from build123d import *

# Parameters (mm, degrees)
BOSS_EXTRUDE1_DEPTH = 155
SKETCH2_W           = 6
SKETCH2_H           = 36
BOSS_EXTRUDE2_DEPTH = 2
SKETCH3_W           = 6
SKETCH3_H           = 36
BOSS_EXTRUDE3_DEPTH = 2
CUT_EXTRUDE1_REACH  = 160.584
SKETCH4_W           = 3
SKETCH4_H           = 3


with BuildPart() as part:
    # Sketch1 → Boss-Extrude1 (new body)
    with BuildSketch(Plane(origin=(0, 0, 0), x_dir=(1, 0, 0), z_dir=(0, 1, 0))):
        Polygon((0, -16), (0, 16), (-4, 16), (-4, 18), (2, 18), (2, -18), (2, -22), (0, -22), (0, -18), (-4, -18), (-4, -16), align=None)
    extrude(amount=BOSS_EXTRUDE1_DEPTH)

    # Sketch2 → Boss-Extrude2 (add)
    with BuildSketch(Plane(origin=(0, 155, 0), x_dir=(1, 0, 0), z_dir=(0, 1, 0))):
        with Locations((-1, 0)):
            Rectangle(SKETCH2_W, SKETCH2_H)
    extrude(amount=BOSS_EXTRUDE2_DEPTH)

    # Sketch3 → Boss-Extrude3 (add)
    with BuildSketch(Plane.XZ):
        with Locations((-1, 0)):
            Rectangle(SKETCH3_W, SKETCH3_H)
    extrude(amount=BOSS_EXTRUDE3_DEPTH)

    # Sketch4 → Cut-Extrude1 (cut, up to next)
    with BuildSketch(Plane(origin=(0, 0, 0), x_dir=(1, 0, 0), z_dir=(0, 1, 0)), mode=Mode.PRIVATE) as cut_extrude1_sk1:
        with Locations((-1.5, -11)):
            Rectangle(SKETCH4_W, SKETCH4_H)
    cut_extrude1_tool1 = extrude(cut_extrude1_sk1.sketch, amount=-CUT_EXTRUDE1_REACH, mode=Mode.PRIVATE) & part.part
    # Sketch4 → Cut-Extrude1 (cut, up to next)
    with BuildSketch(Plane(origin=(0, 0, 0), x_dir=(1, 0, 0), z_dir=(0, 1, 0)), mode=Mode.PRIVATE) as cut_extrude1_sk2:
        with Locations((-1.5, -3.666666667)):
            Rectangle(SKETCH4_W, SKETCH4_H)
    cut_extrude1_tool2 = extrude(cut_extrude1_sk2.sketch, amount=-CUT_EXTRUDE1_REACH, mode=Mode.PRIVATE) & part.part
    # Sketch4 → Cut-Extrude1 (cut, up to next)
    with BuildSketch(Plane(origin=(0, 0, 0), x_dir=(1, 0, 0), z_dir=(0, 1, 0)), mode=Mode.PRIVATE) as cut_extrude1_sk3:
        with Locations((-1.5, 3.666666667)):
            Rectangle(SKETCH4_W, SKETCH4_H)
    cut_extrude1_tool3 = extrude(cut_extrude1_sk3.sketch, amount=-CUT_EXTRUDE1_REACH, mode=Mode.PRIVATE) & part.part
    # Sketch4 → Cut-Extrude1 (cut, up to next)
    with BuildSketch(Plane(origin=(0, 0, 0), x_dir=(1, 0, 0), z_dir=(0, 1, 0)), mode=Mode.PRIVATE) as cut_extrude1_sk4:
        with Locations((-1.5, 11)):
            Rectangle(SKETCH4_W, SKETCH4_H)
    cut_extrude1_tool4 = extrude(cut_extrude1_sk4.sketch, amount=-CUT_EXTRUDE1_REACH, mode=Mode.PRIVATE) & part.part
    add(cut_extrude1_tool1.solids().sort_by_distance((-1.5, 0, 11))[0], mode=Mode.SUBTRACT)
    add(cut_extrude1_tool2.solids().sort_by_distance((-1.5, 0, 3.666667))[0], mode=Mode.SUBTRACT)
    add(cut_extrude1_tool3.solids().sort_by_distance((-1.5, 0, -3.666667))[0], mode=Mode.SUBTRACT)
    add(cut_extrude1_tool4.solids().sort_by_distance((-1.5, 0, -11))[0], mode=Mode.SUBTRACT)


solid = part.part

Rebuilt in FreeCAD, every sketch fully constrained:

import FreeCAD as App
import Part
import Sketcher

V = App.Vector


def add_polygon(sketch, points):
    """Adds a closed chain of lines whose ends are joined by coincident constraints."""
    first, n = sketch.GeometryCount, len(points)
    for a, b in zip(points, points[1:] + points[:1]):
        sketch.addGeometry(Part.LineSegment(App.Vector(*a, 0), App.Vector(*b, 0)), False)
    for i in range(n):
        sketch.addConstraint(Sketcher.Constraint("Coincident", first + i, 2, first + (i + 1) % n, 1))

doc = App.newDocument("Part")
body = doc.addObject("PartDesign::Body", "Body")

sketch1 = body.newObject("Sketcher::SketchObject", "Sketch")
sketch1.AttachmentSupport = (doc.getObject("XZ_Plane"), [""])
sketch1.MapMode = "FlatFace"
add_polygon(sketch1, [(0, -16), (0, 16), (-4, 16), (-4, 18), (0, 18), (0, 22), (2, 22), (2, -18), (-4, -18), (-4, -16)])
sketch1.addConstraint([
    Sketcher.Constraint("Vertical", 0),
    Sketcher.Constraint("Horizontal", 1),
    Sketcher.Constraint("Vertical", 2),
    Sketcher.Constraint("Horizontal", 3),
    Sketcher.Constraint("Vertical", 4),
    Sketcher.Constraint("Horizontal", 5),
    Sketcher.Constraint("Vertical", 6),
    Sketcher.Constraint("Horizontal", 7),
    Sketcher.Constraint("Vertical", 8),
    Sketcher.Constraint("Horizontal", 9),
    Sketcher.Constraint("Symmetric", 0, 2, 9, 2, -1, 1),
    Sketcher.Constraint("Symmetric", 2, 2, 7, 2, -1),
    Sketcher.Constraint("PointOnObject", 3, 2, -2),
    Sketcher.Constraint("Equal", 5, 2),
    Sketcher.Constraint("Equal", 9, 4),
    Sketcher.Constraint("DistanceX", 1, 2, 1, 1, 4.0),
    Sketcher.Constraint("DistanceX", 5, 1, 5, 2, 2.0),
    Sketcher.Constraint("DistanceY", 0, 1, 0, 2, 32.0),
])
pad1 = body.newObject("PartDesign::Pad", "Pad")
pad1.Profile = sketch1
pad1.Length = 155
pad1.Reversed = True

sketch2 = body.newObject("Sketcher::SketchObject", "Sketch001")
sketch2.AttachmentSupport = (doc.getObject("XZ_Plane"), [""])
sketch2.MapMode = "FlatFace"
sketch2.AttachmentOffset = App.Placement(V(0, 0, -155), App.Rotation())
add_polygon(sketch2, [(-4, -18), (-4, 18), (2, 18), (2, -18)])
sketch2.addConstraint([
    Sketcher.Constraint("Vertical", 0),
    Sketcher.Constraint("Horizontal", 1),
    Sketcher.Constraint("Vertical", 2),
    Sketcher.Constraint("Horizontal", 3),
    Sketcher.Constraint("DistanceX", 1, 1, 1, 2, 6.0),
    Sketcher.Constraint("DistanceY", 0, 1, 0, 2, 36.0),
    Sketcher.Constraint("DistanceX", 0, 2, -1, 1, 4.0),
    Sketcher.Constraint("DistanceY", -1, 1, 0, 2, 18.0),
])
pad2 = body.newObject("PartDesign::Pad", "Pad001")
pad2.Profile = sketch2
pad2.Length = 2
pad2.Reversed = True

sketch3 = body.newObject("Sketcher::SketchObject", "Sketch002")
sketch3.AttachmentSupport = (doc.getObject("XZ_Plane"), [""])
sketch3.MapMode = "FlatFace"
add_polygon(sketch3, [(-4, 18), (-4, -18), (2, -18), (2, 18)])
sketch3.addConstraint([
    Sketcher.Constraint("Vertical", 0),
    Sketcher.Constraint("Horizontal", 1),
    Sketcher.Constraint("Vertical", 2),
    Sketcher.Constraint("Horizontal", 3),
    Sketcher.Constraint("DistanceX", 1, 1, 1, 2, 6.0),
    Sketcher.Constraint("DistanceY", 0, 2, 0, 1, 36.0),
    Sketcher.Constraint("DistanceX", 0, 2, -1, 1, 4.0),
    Sketcher.Constraint("DistanceY", 0, 2, -1, 1, 18.0),
])
pad3 = body.newObject("PartDesign::Pad", "Pad002")
pad3.Profile = sketch3
pad3.Length = 2

sketch4 = body.newObject("Sketcher::SketchObject", "Sketch003")
sketch4.AttachmentSupport = (doc.getObject("XZ_Plane"), [""])
sketch4.MapMode = "FlatFace"
add_polygon(sketch4, [(-3, 9.5), (-3, 12.5), (0, 12.5), (0, 9.5)])
sketch4.addConstraint([
    Sketcher.Constraint("Vertical", 0),
    Sketcher.Constraint("Horizontal", 1),
    Sketcher.Constraint("Vertical", 2),
    Sketcher.Constraint("Horizontal", 3),
    Sketcher.Constraint("PointOnObject", 1, 2, -2),
    Sketcher.Constraint("Equal", 3, 0),
    Sketcher.Constraint("DistanceX", 1, 1, 1, 2, 3.0),
    Sketcher.Constraint("DistanceY", -1, 1, 0, 2, 12.5),
])
pocket1 = body.newObject("PartDesign::Pocket", "Pocket")
pocket1.Profile = sketch4
pocket1.Type = "UpToFirst"
pocket1.Reversed = True

sketch5 = body.newObject("Sketcher::SketchObject", "Sketch004")
sketch5.AttachmentSupport = (doc.getObject("XZ_Plane"), [""])
sketch5.MapMode = "FlatFace"
add_polygon(sketch5, [(-3, 2.2), (-3, 5.2), (0, 5.2), (0, 2.2)])
sketch5.addConstraint([
    Sketcher.Constraint("Vertical", 0),
    Sketcher.Constraint("Horizontal", 1),
    Sketcher.Constraint("Vertical", 2),
    Sketcher.Constraint("Horizontal", 3),
    Sketcher.Constraint("PointOnObject", 1, 2, -2),
    Sketcher.Constraint("Equal", 3, 0),
    Sketcher.Constraint("DistanceX", 1, 1, 1, 2, 3.0),
    Sketcher.Constraint("DistanceY", -1, 1, 0, 2, 5.166667),
])
pocket2 = body.newObject("PartDesign::Pocket", "Pocket001")
pocket2.Profile = sketch5
pocket2.Type = "UpToFirst"
pocket2.Reversed = True

sketch6 = body.newObject("Sketcher::SketchObject", "Sketch005")
sketch6.AttachmentSupport = (doc.getObject("XZ_Plane"), [""])
sketch6.MapMode = "FlatFace"
add_polygon(sketch6, [(-3, -5.2), (-3, -2.2), (0, -2.2), (0, -5.2)])
sketch6.addConstraint([
    Sketcher.Constraint("Vertical", 0),
    Sketcher.Constraint("Horizontal", 1),
    Sketcher.Constraint("Vertical", 2),
    Sketcher.Constraint("Horizontal", 3),
    Sketcher.Constraint("PointOnObject", 1, 2, -2),
    Sketcher.Constraint("Equal", 3, 0),
    Sketcher.Constraint("DistanceX", 1, 1, 1, 2, 3.0),
    Sketcher.Constraint("DistanceY", 0, 2, -1, 1, 2.166667),
])
pocket3 = body.newObject("PartDesign::Pocket", "Pocket002")
pocket3.Profile = sketch6
pocket3.Type = "UpToFirst"
pocket3.Reversed = True

sketch7 = body.newObject("Sketcher::SketchObject", "Sketch006")
sketch7.AttachmentSupport = (doc.getObject("XZ_Plane"), [""])
sketch7.MapMode = "FlatFace"
add_polygon(sketch7, [(-3, -12.5), (-3, -9.5), (0, -9.5), (0, -12.5)])
sketch7.addConstraint([
    Sketcher.Constraint("Vertical", 0),
    Sketcher.Constraint("Horizontal", 1),
    Sketcher.Constraint("Vertical", 2),
    Sketcher.Constraint("Horizontal", 3),
    Sketcher.Constraint("PointOnObject", 1, 2, -2),
    Sketcher.Constraint("Equal", 3, 0),
    Sketcher.Constraint("DistanceX", 1, 1, 1, 2, 3.0),
    Sketcher.Constraint("DistanceY", 0, 2, -1, 1, 9.5),
])
pocket4 = body.newObject("PartDesign::Pocket", "Pocket003")
pocket4.Profile = sketch7
pocket4.Type = "UpToFirst"
pocket4.Reversed = True

doc.recompute()
